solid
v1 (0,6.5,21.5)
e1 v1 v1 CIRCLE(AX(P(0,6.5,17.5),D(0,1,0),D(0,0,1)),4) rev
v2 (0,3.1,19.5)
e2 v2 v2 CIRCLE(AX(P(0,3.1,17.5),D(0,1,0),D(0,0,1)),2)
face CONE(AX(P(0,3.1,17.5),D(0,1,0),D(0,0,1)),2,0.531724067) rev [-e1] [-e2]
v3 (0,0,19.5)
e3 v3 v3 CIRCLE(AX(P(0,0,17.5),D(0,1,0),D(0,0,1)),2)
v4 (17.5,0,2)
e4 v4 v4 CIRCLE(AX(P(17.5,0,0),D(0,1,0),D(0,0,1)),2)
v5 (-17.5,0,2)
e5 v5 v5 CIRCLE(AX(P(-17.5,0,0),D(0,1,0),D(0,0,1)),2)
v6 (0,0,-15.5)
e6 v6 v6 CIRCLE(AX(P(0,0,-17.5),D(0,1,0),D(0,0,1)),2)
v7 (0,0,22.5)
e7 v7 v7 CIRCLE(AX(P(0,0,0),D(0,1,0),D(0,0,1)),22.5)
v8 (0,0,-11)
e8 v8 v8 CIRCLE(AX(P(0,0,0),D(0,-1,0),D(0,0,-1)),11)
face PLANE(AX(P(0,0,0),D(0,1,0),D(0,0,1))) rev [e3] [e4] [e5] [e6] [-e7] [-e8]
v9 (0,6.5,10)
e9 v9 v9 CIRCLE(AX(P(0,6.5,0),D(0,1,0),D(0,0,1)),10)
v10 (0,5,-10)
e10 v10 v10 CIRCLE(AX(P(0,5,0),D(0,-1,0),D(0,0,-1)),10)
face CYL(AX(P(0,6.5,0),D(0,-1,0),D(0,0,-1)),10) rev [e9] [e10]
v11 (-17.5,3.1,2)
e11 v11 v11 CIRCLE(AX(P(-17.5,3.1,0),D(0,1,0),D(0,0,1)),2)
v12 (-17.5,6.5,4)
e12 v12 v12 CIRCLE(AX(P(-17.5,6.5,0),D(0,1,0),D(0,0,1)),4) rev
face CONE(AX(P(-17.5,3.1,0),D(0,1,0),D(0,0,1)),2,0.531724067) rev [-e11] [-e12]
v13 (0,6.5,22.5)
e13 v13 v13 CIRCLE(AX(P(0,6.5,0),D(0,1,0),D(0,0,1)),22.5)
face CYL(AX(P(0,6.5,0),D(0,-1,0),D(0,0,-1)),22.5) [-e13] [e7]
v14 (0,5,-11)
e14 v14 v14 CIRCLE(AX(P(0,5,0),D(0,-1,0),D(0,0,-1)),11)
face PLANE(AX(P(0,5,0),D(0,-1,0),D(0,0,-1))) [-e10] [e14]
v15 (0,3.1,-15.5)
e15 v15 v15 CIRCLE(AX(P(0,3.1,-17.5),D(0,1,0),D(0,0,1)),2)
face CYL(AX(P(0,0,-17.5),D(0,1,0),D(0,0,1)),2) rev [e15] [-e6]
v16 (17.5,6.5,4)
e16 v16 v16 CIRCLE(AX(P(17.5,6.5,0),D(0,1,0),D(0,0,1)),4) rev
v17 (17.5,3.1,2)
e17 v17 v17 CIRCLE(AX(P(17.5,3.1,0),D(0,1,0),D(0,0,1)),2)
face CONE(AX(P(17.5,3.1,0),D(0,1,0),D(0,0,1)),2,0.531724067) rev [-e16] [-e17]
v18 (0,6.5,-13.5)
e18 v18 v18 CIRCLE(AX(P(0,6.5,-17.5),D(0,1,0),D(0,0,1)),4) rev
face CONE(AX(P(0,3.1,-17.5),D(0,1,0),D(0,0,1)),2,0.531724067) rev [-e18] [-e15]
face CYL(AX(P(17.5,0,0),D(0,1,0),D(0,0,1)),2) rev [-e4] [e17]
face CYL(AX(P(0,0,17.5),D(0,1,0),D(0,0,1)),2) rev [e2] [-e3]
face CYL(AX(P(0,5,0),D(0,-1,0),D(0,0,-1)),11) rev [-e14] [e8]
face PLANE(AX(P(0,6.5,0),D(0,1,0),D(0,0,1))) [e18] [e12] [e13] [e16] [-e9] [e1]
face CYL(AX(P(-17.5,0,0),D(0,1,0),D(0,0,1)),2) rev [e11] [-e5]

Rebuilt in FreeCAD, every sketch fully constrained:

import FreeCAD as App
import Part
import Sketcher
from FreeCAD import Vector


def edges_at(feature, points):
    """Names of the edges that pass closest to the given points."""
    edges = feature.Shape.Edges
    near = lambda p: min(range(len(edges)), key=lambda i: edges[i].distToShape(Part.Vertex(*p))[0])
    return sorted({f"Edge{near(p) + 1}" for p in points})

doc = App.newDocument("Part")
body = doc.addObject("PartDesign::Body", "Body")

sketch1 = body.newObject("Sketcher::SketchObject", "Sketch")
sketch1.AttachmentSupport = (doc.getObject("XZ_Plane"), [""])
sketch1.MapMode = "FlatFace"
sketch1.addGeometry(Part.Circle(Vector(0, 0, 0), Vector(0, 0, 1), 22), False)
sketch1.addGeometry(Part.Circle(Vector(0, 0, 0), Vector(0, 0, 1), 10), False)
sketch1.addConstraint(Sketcher.Constraint("Coincident", 0, 3, -1, 1))
sketch1.addConstraint(Sketcher.Constraint("Coincident", 1, 3, -1, 1))
sketch1.addConstraint(Sketcher.Constraint("Diameter", 0, 45.0))
sketch1.addConstraint(Sketcher.Constraint("Diameter", 1, 20.0))
pad1 = body.newObject("PartDesign::Pad", "Pad")
pad1.Profile = sketch1
pad1.Length = 6.5
pad1.Reversed = True

sketch2 = body.newObject("Sketcher::SketchObject", "Sketch001")
sketch2.AttachmentSupport = (doc.getObject("XZ_Plane"), [""])
sketch2.MapMode = "FlatFace"
sketch2.AttachmentOffset = App.Placement(Vector(0, 0, -6.5), App.Rotation())
sketch2.addGeometry(Part.Circle(Vector(0, -17.5, 0), Vector(0, 0, 1), 2), False)
sketch2.addGeometry(Part.Circle(Vector(17.5, 0, 0), Vector(0, 0, 1), 2), False)
sketch2.addGeometry(Part.Circle(Vector(0, 17.5, 0), Vector(0, 0, 1), 2), False)
sketch2.addGeometry(Part.Circle(Vector(-17.5, 0, 0), Vector(0, 0, 1), 2), False)
sketch2.addConstraint(Sketcher.Constraint("Equal", 0, 1))
sketch2.addConstraint(Sketcher.Constraint("Equal", 1, 2))
sketch2.addConstraint(Sketcher.Constraint("Equal", 2, 3))
sketch2.addConstraint(Sketcher.Constraint("Symmetric", 0, 3, 2, 3, -1, 1))
sketch2.addConstraint(Sketcher.Constraint("Symmetric", 1, 3, 3, 3, -1, 1))
sketch2.addConstraint(Sketcher.Constraint("PointOnObject", 0, 3, -2))
sketch2.addConstraint(Sketcher.Constraint("PointOnObject", 1, 3, -1))
sketch2.addConstraint(Sketcher.Constraint("Diameter", 0, 4.0))
sketch2.addConstraint(Sketcher.Constraint("DistanceY", 0, 3, 2, 3, 35.0))
sketch2.addConstraint(Sketcher.Constraint("DistanceX", 3, 3, 1, 3, 35.0))
pocket1 = body.newObject("PartDesign::Pocket", "Pocket")
pocket1.Profile = sketch2
pocket1.Type = "ThroughAll"
pocket1.Reversed = True

sketch3 = body.newObject("Sketcher::SketchObject", "Sketch002")
sketch3.AttachmentSupport = (doc.getObject("XZ_Plane"), [""])
sketch3.MapMode = "FlatFace"
sketch3.addGeometry(Part.Circle(Vector(0, 0, 0), Vector(0, 0, 1), 11), False)
sketch3.addConstraint(Sketcher.Constraint("Coincident", 0, 3, -1, 1))
sketch3.addConstraint(Sketcher.Constraint("Diameter", 0, 22.0))
pocket2 = body.newObject("PartDesign::Pocket", "Pocket001")
pocket2.Profile = sketch3
pocket2.Length = 5
doc.recompute()

chamfer = body.newObject("PartDesign::Chamfer", "Chamfer")
chamfer.Base = (pocket2, edges_at(pocket2, [
    (-2, 6.5, -17.5),
    (15.5, 6.5, 0),
    (-2, 6.5, 17.5),
    (-19.5, 6.5, 0),
]))
chamfer.ChamferType = "Two distances"
chamfer.Size = 2
chamfer.Size2 = 3.4

doc.recompute()
